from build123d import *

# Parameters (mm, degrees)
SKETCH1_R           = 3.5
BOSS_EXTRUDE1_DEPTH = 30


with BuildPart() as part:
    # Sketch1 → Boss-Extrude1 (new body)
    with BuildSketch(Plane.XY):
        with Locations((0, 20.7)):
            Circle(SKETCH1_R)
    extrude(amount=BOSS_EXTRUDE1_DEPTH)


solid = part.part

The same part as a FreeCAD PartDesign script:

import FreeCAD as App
import Part
import Sketcher

V = App.Vector

doc = App.newDocument("Part")
body = doc.addObject("PartDesign::Body", "Body")

sketch1 = doc.addObject("Sketcher::SketchObject", "Sketch")
body.addObject(sketch1)
sketch1.AttachmentSupport = (doc.XY_Plane, [""])
sketch1.MapMode = "FlatFace"
sketch1.addGeometry(Part.Circle(V(0, 20.7, 0), V(0, 0, 1), 3.5), False)
sketch1.addConstraint([
    Sketcher.Constraint("PointOnObject", 0, 3, -2),
    Sketcher.Constraint("Diameter", 0, 7.0),
    Sketcher.Constraint("DistanceY", -1, 1, 0, 3, 20.7),
])
pad1 = doc.addObject("PartDesign::Pad", "Pad")
body.addObject(pad1)
pad1.Profile = sketch1
pad1.Length = 30

doc.recompute()
